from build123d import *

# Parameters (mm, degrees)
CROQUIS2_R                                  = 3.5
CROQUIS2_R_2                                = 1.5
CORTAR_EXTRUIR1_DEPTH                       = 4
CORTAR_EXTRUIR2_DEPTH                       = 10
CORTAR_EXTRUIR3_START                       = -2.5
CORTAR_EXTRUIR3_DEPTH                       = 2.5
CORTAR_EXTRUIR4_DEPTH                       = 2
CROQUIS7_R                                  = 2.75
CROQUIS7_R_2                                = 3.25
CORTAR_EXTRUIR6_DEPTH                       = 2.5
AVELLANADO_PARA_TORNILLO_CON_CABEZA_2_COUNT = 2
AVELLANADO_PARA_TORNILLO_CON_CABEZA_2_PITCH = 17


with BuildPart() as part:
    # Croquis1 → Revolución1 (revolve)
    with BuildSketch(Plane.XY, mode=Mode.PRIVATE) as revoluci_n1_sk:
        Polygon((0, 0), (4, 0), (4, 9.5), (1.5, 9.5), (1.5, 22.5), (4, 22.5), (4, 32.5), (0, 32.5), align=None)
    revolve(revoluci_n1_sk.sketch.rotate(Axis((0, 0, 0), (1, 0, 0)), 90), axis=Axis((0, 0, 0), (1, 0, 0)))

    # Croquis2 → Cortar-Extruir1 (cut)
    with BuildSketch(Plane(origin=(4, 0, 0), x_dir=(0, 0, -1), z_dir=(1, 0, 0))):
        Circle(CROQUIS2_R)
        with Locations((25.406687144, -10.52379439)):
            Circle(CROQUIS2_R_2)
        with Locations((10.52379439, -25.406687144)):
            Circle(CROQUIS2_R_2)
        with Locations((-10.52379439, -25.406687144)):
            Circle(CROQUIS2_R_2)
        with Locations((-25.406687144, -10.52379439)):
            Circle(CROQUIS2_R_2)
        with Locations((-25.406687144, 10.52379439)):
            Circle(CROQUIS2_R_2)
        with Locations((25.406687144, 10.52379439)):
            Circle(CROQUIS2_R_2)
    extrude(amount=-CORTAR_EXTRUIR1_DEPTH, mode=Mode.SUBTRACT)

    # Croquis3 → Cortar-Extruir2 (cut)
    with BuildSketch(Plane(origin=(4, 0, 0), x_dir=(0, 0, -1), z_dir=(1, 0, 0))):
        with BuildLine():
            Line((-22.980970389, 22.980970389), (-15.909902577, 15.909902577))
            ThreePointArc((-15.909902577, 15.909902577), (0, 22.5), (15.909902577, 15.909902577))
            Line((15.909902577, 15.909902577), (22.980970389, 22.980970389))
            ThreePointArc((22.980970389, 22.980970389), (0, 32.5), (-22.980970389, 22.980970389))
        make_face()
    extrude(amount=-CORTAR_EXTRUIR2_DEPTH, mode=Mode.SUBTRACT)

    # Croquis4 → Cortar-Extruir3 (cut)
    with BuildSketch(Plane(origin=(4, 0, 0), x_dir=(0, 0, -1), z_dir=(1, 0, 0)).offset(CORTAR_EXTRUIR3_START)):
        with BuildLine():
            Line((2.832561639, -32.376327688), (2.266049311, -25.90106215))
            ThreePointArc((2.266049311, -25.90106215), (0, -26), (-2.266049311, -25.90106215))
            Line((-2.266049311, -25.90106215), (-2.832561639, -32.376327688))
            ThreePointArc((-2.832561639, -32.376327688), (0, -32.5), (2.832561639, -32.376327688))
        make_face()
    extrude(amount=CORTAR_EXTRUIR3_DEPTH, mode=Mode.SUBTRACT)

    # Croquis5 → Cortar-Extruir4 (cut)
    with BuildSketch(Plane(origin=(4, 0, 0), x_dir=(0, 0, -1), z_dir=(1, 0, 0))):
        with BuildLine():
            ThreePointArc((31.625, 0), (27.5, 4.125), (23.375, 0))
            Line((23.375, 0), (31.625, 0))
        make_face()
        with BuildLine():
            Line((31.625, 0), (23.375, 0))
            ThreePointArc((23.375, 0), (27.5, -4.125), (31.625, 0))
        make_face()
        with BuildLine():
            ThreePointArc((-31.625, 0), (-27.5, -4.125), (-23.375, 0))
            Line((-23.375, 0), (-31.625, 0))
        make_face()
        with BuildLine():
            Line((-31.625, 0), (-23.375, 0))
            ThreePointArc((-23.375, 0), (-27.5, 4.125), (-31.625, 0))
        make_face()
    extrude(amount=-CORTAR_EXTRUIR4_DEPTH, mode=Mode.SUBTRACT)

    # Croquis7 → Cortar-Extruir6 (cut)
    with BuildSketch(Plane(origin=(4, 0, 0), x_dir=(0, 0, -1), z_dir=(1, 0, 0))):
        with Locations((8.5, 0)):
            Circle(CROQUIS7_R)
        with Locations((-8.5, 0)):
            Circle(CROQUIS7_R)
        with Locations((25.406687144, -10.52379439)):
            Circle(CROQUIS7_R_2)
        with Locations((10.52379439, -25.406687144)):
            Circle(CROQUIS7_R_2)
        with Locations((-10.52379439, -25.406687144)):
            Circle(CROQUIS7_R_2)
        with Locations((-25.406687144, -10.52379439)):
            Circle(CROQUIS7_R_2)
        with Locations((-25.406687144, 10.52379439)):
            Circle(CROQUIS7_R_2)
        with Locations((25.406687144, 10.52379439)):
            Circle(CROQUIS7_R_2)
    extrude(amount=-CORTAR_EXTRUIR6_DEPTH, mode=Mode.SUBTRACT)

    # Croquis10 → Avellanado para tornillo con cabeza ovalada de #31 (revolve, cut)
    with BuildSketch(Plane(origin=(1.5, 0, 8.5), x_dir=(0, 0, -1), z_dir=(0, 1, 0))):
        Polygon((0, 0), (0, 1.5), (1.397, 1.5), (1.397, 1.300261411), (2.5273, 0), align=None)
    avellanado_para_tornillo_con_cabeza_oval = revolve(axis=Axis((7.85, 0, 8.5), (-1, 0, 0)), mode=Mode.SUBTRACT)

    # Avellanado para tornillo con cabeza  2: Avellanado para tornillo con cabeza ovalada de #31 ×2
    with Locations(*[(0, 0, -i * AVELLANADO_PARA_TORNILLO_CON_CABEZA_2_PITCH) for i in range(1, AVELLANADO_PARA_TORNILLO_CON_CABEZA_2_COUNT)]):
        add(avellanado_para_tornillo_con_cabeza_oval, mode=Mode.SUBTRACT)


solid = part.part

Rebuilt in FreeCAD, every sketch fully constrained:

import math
import FreeCAD as App
import Part
import Sketcher
Q = App.Units.Quantity


def add_polygon(sketch, points):
    """Adds a closed chain of lines whose ends are joined by coincident constraints."""
    first, n = sketch.GeometryCount, len(points)
    for a, b in zip(points, points[1:] + points[:1]):
        sketch.addGeometry(Part.LineSegment(App.Vector(*a, 0), App.Vector(*b, 0)), False)
    for i in range(n):
        sketch.addConstraint(Sketcher.Constraint("Coincident", first + i, 2, first + (i + 1) % n, 1))

doc = App.newDocument("Part")
params = doc.addObject("Spreadsheet::Sheet", "Params")
for row, (alias, value) in enumerate([
    ("sketch1_width", "4 mm"),
    ("sketch1_height", "13 mm"),
    ("sketch1_height2", "10 mm"),
    ("sketch1_width2", "2.5 mm"),
    ("sketch1_height3", "9.5 mm"),
    ("revolution_angle", "360 deg"),
    ("sketch2_diameter", "7 mm"),
    ("sketch2_diameter2", "3 mm"),
    ("pocket1_length", "4 mm"),
    ("sketch3_radius", "22.5 mm"),
    ("sketch3_radius2", "32.5 mm"),
    ("pocket2_length", "10 mm"),
    ("sketch4_radius", "26 mm"),
    ("sketch4_radius2", "32.5 mm"),
    ("pocket3_length", "2.5 mm"),
    ("sketch5_diameter", "8.25 mm"),
    ("pocket4_length", "2 mm"),
    ("sketch6_diameter", "5.5 mm"),
    ("sketch6_diameter2", "6.5 mm"),
    ("pocket5_length", "2.5 mm"),
    ("sketch7_width", "1.5 mm"),
    ("groove_angle", "360 deg"),
    ("linearpattern_pitch", "17 mm"),
], start=1):
    params.set(f"A{row}", alias)
    params.set(f"B{row}", "=" + value)
    params.setAlias(f"B{row}", alias)

body = doc.addObject("PartDesign::Body", "Body")

# Sketch on XY plane
sketch1 = body.newObject("Sketcher::SketchObject", "Sketch")
sketch1.AttachmentSupport = (doc.getObject("XY_Plane"), [""])
sketch1.MapMode = "FlatFace"
add_polygon(sketch1, [(0, 0), (4, 0), (4, 9.5), (1.5, 9.5), (1.5, 22.5), (4, 22.5), (4, 32.5), (0, 32.5)])  # lines 0-7
sketch1.addConstraint([
    Sketcher.Constraint("Horizontal", 0),
    Sketcher.Constraint("Vertical", 1),
    Sketcher.Constraint("Horizontal", 2),
    Sketcher.Constraint("Vertical", 3),
    Sketcher.Constraint("Horizontal", 4),
    Sketcher.Constraint("Vertical", 5),
    Sketcher.Constraint("Horizontal", 6),
    Sketcher.Constraint("Vertical", 7),
    Sketcher.Constraint("Coincident", 7, 2, -1, 1),
    Sketcher.Constraint("Vertical", 1, 2, 4, 2),
    Sketcher.Constraint("DistanceX", 0, 1, 0, 2, Q("4 mm")),
    Sketcher.Constraint("DistanceY", 3, 1, 3, 2, Q("13 mm")),
    Sketcher.Constraint("DistanceY", 5, 1, 5, 2, Q("10 mm")),
    Sketcher.Constraint("DistanceX", 2, 2, 2, 1, Q("2.5 mm")),
    Sketcher.Constraint("DistanceY", 1, 1, 1, 2, Q("9.5 mm")),
])
sketch1.setExpression("Constraints[18]", "Params.sketch1_width")
sketch1.setExpression("Constraints[19]", "Params.sketch1_height")
sketch1.setExpression("Constraints[20]", "Params.sketch1_height2")
sketch1.setExpression("Constraints[21]", "Params.sketch1_width2")
sketch1.setExpression("Constraints[22]", "Params.sketch1_height3")
revolution = body.newObject("PartDesign::Revolution", "Revolution")
revolution.Profile = sketch1
revolution.ReferenceAxis = (sketch1, ["H_Axis"])
revolution.setExpression("Angle", "Params.revolution_angle")

# Sketch on YZ plane
sketch2 = body.newObject("Sketcher::SketchObject", "Sketch001")
sketch2.AttachmentSupport = (doc.getObject("YZ_Plane"), [""])
sketch2.MapMode = "FlatFace"
sketch2.AttachmentOffset = App.Placement(App.Vector(0, 0, 4), App.Rotation())
sketch2.addGeometry([
    Part.Circle(App.Vector(0, 0, 0), App.Vector(0, 0, 1), 3.5),  # 0
    Part.Circle(App.Vector(-10.5, -25.4, 0), App.Vector(0, 0, 1), 1.5),  # 1
    Part.Circle(App.Vector(-25.4, -10.5, 0), App.Vector(0, 0, 1), 1.5),  # 2
    Part.Circle(App.Vector(-25.4, 10.5, 0), App.Vector(0, 0, 1), 1.5),  # 3
    Part.Circle(App.Vector(-10.5, 25.4, 0), App.Vector(0, 0, 1), 1.5),  # 4
    Part.Circle(App.Vector(10.5, 25.4, 0), App.Vector(0, 0, 1), 1.5),  # 5
    Part.Circle(App.Vector(10.5, -25.4, 0), App.Vector(0, 0, 1), 1.5),  # 6
], False)
sketch2.addConstraint([
    Sketcher.Constraint("Coincident", 0, 3, -1, 1),
    Sketcher.Constraint("Equal", 1, 2),
    Sketcher.Constraint("Equal", 2, 3),
    Sketcher.Constraint("Equal", 3, 4),
    Sketcher.Constraint("Equal", 4, 5),
    Sketcher.Constraint("Equal", 5, 6),
    Sketcher.Constraint("Symmetric", 1, 3, 5, 3, -1, 1),
    Sketcher.Constraint("Symmetric", 4, 3, 6, 3, -1, 1),
    Sketcher.Constraint("Symmetric", 4, 3, 5, 3, -2),
    Sketcher.Constraint("Symmetric", 2, 3, 3, 3, -1),
    Sketcher.Constraint("Diameter", 0, Q("7 mm")),
    Sketcher.Constraint("Diameter", 1, Q("3 mm")),
    Sketcher.Constraint("DistanceY", 2, 3, 3, 3, Q("21.047589 mm")),
    Sketcher.Constraint("DistanceY", 1, 3, 3, 3, Q("35.930482 mm")),
    Sketcher.Constraint("DistanceX", 4, 3, 5, 3, Q("21.047589 mm")),
    Sketcher.Constraint("DistanceX", 3, 3, 5, 3, Q("35.930482 mm")),
])
sketch2.setExpression("Constraints[10]", "Params.sketch2_diameter")
sketch2.setExpression("Constraints[11]", "Params.sketch2_diameter2")
pocket1 = body.newObject("PartDesign::Pocket", "Pocket")
pocket1.Profile = sketch2
pocket1.setExpression("Length", "Params.pocket1_length")

# Sketch on YZ plane
sketch3 = body.newObject("Sketcher::SketchObject", "Sketch002")
sketch3.AttachmentSupport = (doc.getObject("YZ_Plane"), [""])
sketch3.MapMode = "FlatFace"
sketch3.AttachmentOffset = App.Placement(App.Vector(0, 0, 4), App.Rotation())
sketch3.addGeometry([
    Part.LineSegment(App.Vector(23, 23, 0), App.Vector(16, 16, 0)),
    Part.ArcOfCircle(Part.Circle(App.Vector(0, 0, 0), App.Vector(0, 0, 1), 23), math.radians(-45), math.radians(45)),
    Part.LineSegment(App.Vector(16, -16, 0), App.Vector(23, -23, 0)),
    Part.ArcOfCircle(Part.Circle(App.Vector(0, 0, 0), App.Vector(0, 0, 1), 33), math.radians(-45), math.radians(45)),
], False)
sketch3.addConstraint([
    Sketcher.Constraint("Coincident", 0, 2, 1, 2),
    Sketcher.Constraint("Coincident", 1, 1, 2, 1),
    Sketcher.Constraint("Coincident", 2, 2, 3, 1),
    Sketcher.Constraint("Coincident", 3, 2, 0, 1),
    Sketcher.Constraint("Coincident", 1, 3, -1, 1),
    Sketcher.Constraint("Coincident", 3, 3, -1, 1),
    Sketcher.Constraint("Perpendicular", 0, 2),
    Sketcher.Constraint("Vertical", 0, 2, 1, 1),
    Sketcher.Constraint("Vertical", 2, 2, 3, 2),
    Sketcher.Constraint("Radius", 1, Q("22.5 mm")),
    Sketcher.Constraint("Radius", 3, Q("32.5 mm")),
    Sketcher.Constraint("DistanceX", -1, 1, 2, 2, Q("22.98097 mm")),
])
sketch3.setExpression("Constraints[9]", "Params.sketch3_radius")
sketch3.setExpression("Constraints[10]", "Params.sketch3_radius2")
pocket2 = body.newObject("PartDesign::Pocket", "Pocket001")
pocket2.Profile = sketch3
pocket2.setExpression("Length", "Params.pocket2_length")

# Sketch on YZ plane
sketch4 = body.newObject("Sketcher::SketchObject", "Sketch003")
sketch4.AttachmentSupport = (doc.getObject("YZ_Plane"), [""])
sketch4.MapMode = "FlatFace"
sketch4.AttachmentOffset = App.Placement(App.Vector(0, 0, 1.5), App.Rotation())
sketch4.addGeometry([
    Part.LineSegment(App.Vector(-32.4, -2.8, 0), App.Vector(-25.9, -2.3, 0)),
    Part.ArcOfCircle(Part.Circle(App.Vector(0, 0, 0), App.Vector(0, 0, 1), 26), math.radians(175), math.radians(185)),
    Part.LineSegment(App.Vector(-25.9, 2.3, 0), App.Vector(-32.4, 2.8, 0)),
    Part.ArcOfCircle(Part.Circle(App.Vector(0, 0, 0), App.Vector(0, 0, 1), 32.5), math.radians(175), math.radians(185)),
], False)
sketch4.addConstraint([
    Sketcher.Constraint("Coincident", 0, 2, 1, 2),
    Sketcher.Constraint("Coincident", 1, 1, 2, 1),
    Sketcher.Constraint("Coincident", 2, 2, 3, 1),
    Sketcher.Constraint("Coincident", 3, 2, 0, 1),
    Sketcher.Constraint("Coincident", 1, 3, -1, 1),
    Sketcher.Constraint("Coincident", 3, 3, -1, 1),
    Sketcher.Constraint("Vertical", 0, 2, 1, 1),
    Sketcher.Constraint("Vertical", 2, 2, 3, 2),
    Sketcher.Constraint("Radius", 1, Q("26 mm")),
    Sketcher.Constraint("Radius", 3, Q("32.5 mm")),
    Sketcher.Constraint("Angle", 0, Q("5 deg")),
    Sketcher.Constraint("DistanceY", 0, 2, 1, 1, Q("4.532099 mm")),
])
sketch4.setExpression("Constraints[8]", "Params.sketch4_radius")
sketch4.setExpression("Constraints[9]", "Params.sketch4_radius2")
pocket3 = body.newObject("PartDesign::Pocket", "Pocket002")
pocket3.Profile = sketch4
pocket3.setExpression("Length", "Params.pocket3_length")
pocket3.Reversed = True

# Sketch on YZ plane
sketch5 = body.newObject("Sketcher::SketchObject", "Sketch004")
sketch5.AttachmentSupport = (doc.getObject("YZ_Plane"), [""])
sketch5.MapMode = "FlatFace"
sketch5.AttachmentOffset = App.Placement(App.Vector(0, 0, 4), App.Rotation())
sketch5.addGeometry([
    Part.Circle(App.Vector(0, -27.5, 0), App.Vector(0, 0, 1), 4.1),
    Part.Circle(App.Vector(0, 27.5, 0), App.Vector(0, 0, 1), 4.1),
], False)
sketch5.addConstraint([
    Sketcher.Constraint("Equal", 0, 1),
    Sketcher.Constraint("Symmetric", 0, 3, 1, 3, -1, 1),
    Sketcher.Constraint("PointOnObject", 0, 3, -2),
    Sketcher.Constraint("Diameter", 0, Q("8.25 mm")),
    Sketcher.Constraint("DistanceY", 0, 3, 1, 3, Q("55 mm")),
])
sketch5.setExpression("Constraints[3]", "Params.sketch5_diameter")
pocket4 = body.newObject("PartDesign::Pocket", "Pocket003")
pocket4.Profile = sketch5
pocket4.setExpression("Length", "Params.pocket4_length")

# Sketch on YZ plane
sketch6 = body.newObject("Sketcher::SketchObject", "Sketch005")
sketch6.AttachmentSupport = (doc.getObject("YZ_Plane"), [""])
sketch6.MapMode = "FlatFace"
sketch6.AttachmentOffset = App.Placement(App.Vector(0, 0, 4), App.Rotation())
sketch6.addGeometry([
    Part.Circle(App.Vector(0, -8.5, 0), App.Vector(0, 0, 1), 2.8),  # 0
    Part.Circle(App.Vector(0, 8.5, 0), App.Vector(0, 0, 1), 2.8),  # 1
    Part.Circle(App.Vector(-10.5, -25.4, 0), App.Vector(0, 0, 1), 3.2),  # 2
    Part.Circle(App.Vector(-25.4, -10.5, 0), App.Vector(0, 0, 1), 3.2),  # 3
    Part.Circle(App.Vector(-25.4, 10.5, 0), App.Vector(0, 0, 1), 3.2),  # 4
    Part.Circle(App.Vector(-10.5, 25.4, 0), App.Vector(0, 0, 1), 3.2),  # 5
    Part.Circle(App.Vector(10.5, 25.4, 0), App.Vector(0, 0, 1), 3.2),  # 6
    Part.Circle(App.Vector(10.5, -25.4, 0), App.Vector(0, 0, 1), 3.2),  # 7
], False)
sketch6.addConstraint([
    Sketcher.Constraint("Equal", 0, 1),
    Sketcher.Constraint("Equal", 2, 3),
    Sketcher.Constraint("Equal", 3, 4),
    Sketcher.Constraint("Equal", 4, 5),
    Sketcher.Constraint("Equal", 5, 6),
    Sketcher.Constraint("Equal", 6, 7),
    Sketcher.Constraint("Symmetric", 0, 3, 1, 3, -1, 1),
    Sketcher.Constraint("Symmetric", 2, 3, 6, 3, -1, 1),
    Sketcher.Constraint("Symmetric", 5, 3, 7, 3, -1, 1),
    Sketcher.Constraint("Symmetric", 5, 3, 6, 3, -2),
    Sketcher.Constraint("Symmetric", 3, 3, 4, 3, -1),
    Sketcher.Constraint("PointOnObject", 0, 3, -2),
    Sketcher.Constraint("Diameter", 0, Q("5.5 mm")),
    Sketcher.Constraint("Diameter", 2, Q("6.5 mm")),
    Sketcher.Constraint("DistanceY", 0, 3, 1, 3, Q("17 mm")),
    Sketcher.Constraint("DistanceY", 3, 3, 4, 3, Q("21.047589 mm")),
    Sketcher.Constraint("DistanceY", 2, 3, 4, 3, Q("35.930482 mm")),
    Sketcher.Constraint("DistanceX", 5, 3, 6, 3, Q("21.047589 mm")),
    Sketcher.Constraint("DistanceX", 4, 3, 6, 3, Q("35.930482 mm")),
])
sketch6.setExpression("Constraints[12]", "Params.sketch6_diameter")
sketch6.setExpression("Constraints[13]", "Params.sketch6_diameter2")
pocket5 = body.newObject("PartDesign::Pocket", "Pocket004")
pocket5.Profile = sketch6
pocket5.setExpression("Length", "Params.pocket5_length")

# Sketch on XZ plane
sketch7 = body.newObject("Sketcher::SketchObject", "Sketch006")
sketch7.AttachmentSupport = (doc.getObject("XZ_Plane"), [""])
sketch7.MapMode = "FlatFace"
add_polygon(sketch7, [(0, 8.5), (1.5, 8.5), (1.5, 5.97), (0.2, 7.1), (0, 7.1)])  # lines 0-4
sketch7.addGeometry(Part.LineSegment(App.Vector(1.5, 8.5, 0), App.Vector(0, 8.5, 0)), True)  # axis
sketch7.addConstraint([
    Sketcher.Constraint("Horizontal", 0),
    Sketcher.Constraint("Vertical", 1),
    Sketcher.Constraint("Horizontal", 3),
    Sketcher.Constraint("Vertical", 4),
    Sketcher.Constraint("Horizontal", 5),
    Sketcher.Constraint("Coincident", 5, 1, 0, 2),
    Sketcher.Constraint("PointOnObject", 3, 2, -2),
    Sketcher.Constraint("PointOnObject", 5, 2, -2),
    Sketcher.Constraint("Angle", 2, Q("139 deg")),
    Sketcher.Constraint("DistanceX", 0, 1, 0, 2, Q("1.5 mm")),
    Sketcher.Constraint("DistanceY", -1, 1, 0, 2, Q("8.5 mm")),
    Sketcher.Constraint("DistanceY", 4, 1, 4, 2, Q("1.397 mm")),
    Sketcher.Constraint("DistanceY", 1, 2, 1, 1, Q("2.5273 mm")),
])
sketch7.setExpression("Constraints[14]", "Params.sketch7_width")
groove = body.newObject("PartDesign::Groove", "Groove")
groove.Profile = sketch7
groove.ReferenceAxis = (sketch7, ["Axis0"])
groove.setExpression("Angle", "Params.groove_angle")
doc.recompute()

linearpattern = body.newObject("PartDesign::LinearPattern", "LinearPattern")
linearpattern.Originals = [groove]
linearpattern.Direction = (doc.getObject("Z_Axis"), [""])
linearpattern.Mode = "offset"
linearpattern.setExpression("Offset", "Params.linearpattern_pitch")
linearpattern.Occurrences = 2
linearpattern.Reversed = True
body.Tip = linearpattern

doc.recompute()
